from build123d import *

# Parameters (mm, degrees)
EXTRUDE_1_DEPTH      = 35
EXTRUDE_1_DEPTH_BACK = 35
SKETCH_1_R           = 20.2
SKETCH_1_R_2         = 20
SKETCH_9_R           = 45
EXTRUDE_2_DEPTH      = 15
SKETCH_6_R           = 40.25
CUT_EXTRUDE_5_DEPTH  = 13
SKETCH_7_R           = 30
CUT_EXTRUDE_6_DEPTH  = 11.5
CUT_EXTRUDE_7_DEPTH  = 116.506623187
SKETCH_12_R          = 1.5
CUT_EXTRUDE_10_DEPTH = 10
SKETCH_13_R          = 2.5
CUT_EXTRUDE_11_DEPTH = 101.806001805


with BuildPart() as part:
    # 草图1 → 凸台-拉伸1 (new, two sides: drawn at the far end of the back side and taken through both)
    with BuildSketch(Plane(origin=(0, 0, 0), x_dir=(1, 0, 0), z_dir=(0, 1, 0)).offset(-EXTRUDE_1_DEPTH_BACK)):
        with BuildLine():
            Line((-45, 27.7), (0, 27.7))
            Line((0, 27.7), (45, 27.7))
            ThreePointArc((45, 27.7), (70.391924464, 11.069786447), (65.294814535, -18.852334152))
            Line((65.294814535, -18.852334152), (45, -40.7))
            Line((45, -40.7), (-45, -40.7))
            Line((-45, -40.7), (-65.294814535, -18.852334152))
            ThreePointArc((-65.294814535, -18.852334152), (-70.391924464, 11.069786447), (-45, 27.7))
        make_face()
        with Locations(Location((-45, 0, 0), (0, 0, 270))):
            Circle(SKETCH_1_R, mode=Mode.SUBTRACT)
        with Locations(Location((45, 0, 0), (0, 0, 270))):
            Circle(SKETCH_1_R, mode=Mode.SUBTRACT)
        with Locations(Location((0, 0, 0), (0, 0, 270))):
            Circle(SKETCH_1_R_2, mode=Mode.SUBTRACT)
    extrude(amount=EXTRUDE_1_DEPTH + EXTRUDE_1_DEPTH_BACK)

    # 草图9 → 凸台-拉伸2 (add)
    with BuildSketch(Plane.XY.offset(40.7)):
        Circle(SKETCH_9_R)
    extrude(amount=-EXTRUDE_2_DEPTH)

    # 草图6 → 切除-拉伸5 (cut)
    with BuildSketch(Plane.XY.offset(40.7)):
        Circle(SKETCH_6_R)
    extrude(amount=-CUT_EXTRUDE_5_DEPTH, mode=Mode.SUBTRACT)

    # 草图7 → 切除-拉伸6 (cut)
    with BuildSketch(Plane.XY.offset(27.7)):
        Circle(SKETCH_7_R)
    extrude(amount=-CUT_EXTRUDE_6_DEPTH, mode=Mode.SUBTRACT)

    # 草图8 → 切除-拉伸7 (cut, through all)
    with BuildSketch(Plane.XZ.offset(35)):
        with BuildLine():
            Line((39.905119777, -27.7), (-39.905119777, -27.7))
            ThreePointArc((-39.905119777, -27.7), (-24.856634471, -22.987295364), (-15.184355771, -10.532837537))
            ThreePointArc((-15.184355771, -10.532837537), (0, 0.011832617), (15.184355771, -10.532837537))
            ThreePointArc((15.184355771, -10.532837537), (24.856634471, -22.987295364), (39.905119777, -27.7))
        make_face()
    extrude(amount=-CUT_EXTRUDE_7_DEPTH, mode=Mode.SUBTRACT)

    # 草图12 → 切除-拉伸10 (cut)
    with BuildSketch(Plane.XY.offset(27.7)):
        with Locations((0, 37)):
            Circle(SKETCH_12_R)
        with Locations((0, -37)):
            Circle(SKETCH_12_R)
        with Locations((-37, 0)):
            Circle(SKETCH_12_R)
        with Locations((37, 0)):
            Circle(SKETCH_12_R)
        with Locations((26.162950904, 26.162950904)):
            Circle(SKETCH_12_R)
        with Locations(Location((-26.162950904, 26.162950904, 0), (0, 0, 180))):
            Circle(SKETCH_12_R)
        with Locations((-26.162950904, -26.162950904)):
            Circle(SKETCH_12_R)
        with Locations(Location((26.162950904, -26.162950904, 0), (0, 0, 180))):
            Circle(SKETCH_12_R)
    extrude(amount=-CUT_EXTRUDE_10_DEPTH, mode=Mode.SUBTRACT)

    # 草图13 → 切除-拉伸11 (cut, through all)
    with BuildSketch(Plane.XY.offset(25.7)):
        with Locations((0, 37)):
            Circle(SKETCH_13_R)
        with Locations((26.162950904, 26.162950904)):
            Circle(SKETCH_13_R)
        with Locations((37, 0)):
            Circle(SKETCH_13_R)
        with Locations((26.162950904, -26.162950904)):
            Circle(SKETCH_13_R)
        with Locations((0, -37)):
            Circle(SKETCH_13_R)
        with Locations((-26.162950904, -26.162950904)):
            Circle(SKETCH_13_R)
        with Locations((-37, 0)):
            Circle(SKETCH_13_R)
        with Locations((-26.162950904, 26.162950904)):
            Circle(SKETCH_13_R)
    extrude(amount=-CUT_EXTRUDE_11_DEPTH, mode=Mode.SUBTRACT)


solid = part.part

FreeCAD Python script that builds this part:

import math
import FreeCAD as App
import Part
import Sketcher

V = App.Vector
Q = App.Units.Quantity

doc = App.newDocument("Part")
body = doc.addObject("PartDesign::Body", "Body")

sketch1 = body.newObject("Sketcher::SketchObject", "Sketch")
sketch1.AttachmentSupport = (doc.getObject("XZ_Plane"), [""])
sketch1.MapMode = "FlatFace"
sketch1.addGeometry(Part.LineSegment(V(45, -28, 0), V(-45, -28, 0)), False)
sketch1.addGeometry(Part.ArcOfCircle(Part.Circle(V(-45, 0, 0), V(0, 0, 1), 28), math.radians(137), math.radians(270)), False)
sketch1.addGeometry(Part.LineSegment(V(-65, 19, 0), V(-45, 41, 0)), False)
sketch1.addGeometry(Part.LineSegment(V(-45, 41, 0), V(45, 41, 0)), False)
sketch1.addGeometry(Part.LineSegment(V(45, 41, 0), V(65, 19, 0)), False)
sketch1.addGeometry(Part.ArcOfCircle(Part.Circle(V(45, 0, 0), V(0, 0, 1), 28), math.radians(-90), math.radians(43)), False)
sketch1.addGeometry(Part.Circle(V(45, 0, 0), V(0, 0, 1), 20), False)
sketch1.addGeometry(Part.Circle(V(0, 0, 0), V(0, 0, 1), 20), False)
sketch1.addGeometry(Part.Circle(V(-45, 0, 0), V(0, 0, 1), 20), False)
sketch1.addConstraint(Sketcher.Constraint("Tangent", 0, 2, 1, 2))
sketch1.addConstraint(Sketcher.Constraint("Tangent", 1, 1, 2, 1))
sketch1.addConstraint(Sketcher.Constraint("Coincident", 2, 2, 3, 1))
sketch1.addConstraint(Sketcher.Constraint("Coincident", 3, 2, 4, 1))
sketch1.addConstraint(Sketcher.Constraint("Tangent", 4, 2, 5, 2))
sketch1.addConstraint(Sketcher.Constraint("Tangent", 5, 1, 0, 1))
sketch1.addConstraint(Sketcher.Constraint("Horizontal", 0))
sketch1.addConstraint(Sketcher.Constraint("Horizontal", 3))
sketch1.addConstraint(Sketcher.Constraint("Coincident", 7, 3, -1, 1))
sketch1.addConstraint(Sketcher.Constraint("Coincident", 6, 3, 5, 3))
sketch1.addConstraint(Sketcher.Constraint("Coincident", 8, 3, 1, 3))
sketch1.addConstraint(Sketcher.Constraint("Equal", 1, 5))
sketch1.addConstraint(Sketcher.Constraint("Equal", 6, 8))
sketch1.addConstraint(Sketcher.Constraint("Symmetric", 1, 3, 5, 3, -1, 1))
sketch1.addConstraint(Sketcher.Constraint("Horizontal", 1, 1, 4, 2))
sketch1.addConstraint(Sketcher.Constraint("Vertical", 0, 2, 2, 2))
sketch1.addConstraint(Sketcher.Constraint("Diameter", 7, Q("40 mm")))
sketch1.addConstraint(Sketcher.Constraint("Diameter", 6, Q("40.4 mm")))
sketch1.addConstraint(Sketcher.Constraint("Radius", 1, Q("27.7 mm")))
sketch1.addConstraint(Sketcher.Constraint("DistanceX", 0, 2, 0, 1, Q("90 mm")))
sketch1.addConstraint(Sketcher.Constraint("DistanceY", -1, 1, 2, 2, Q("40.7 mm")))
pad1 = body.newObject("PartDesign::Pad", "Pad")
pad1.Profile = sketch1
pad1.Type = "TwoLengths"
pad1.Length = 35
pad1.Length2 = 35
pad1.Reversed = True

sketch2 = body.newObject("Sketcher::SketchObject", "Sketch001")
sketch2.AttachmentSupport = (doc.getObject("XY_Plane"), [""])
sketch2.MapMode = "FlatFace"
sketch2.AttachmentOffset = App.Placement(V(0, 0, 40.7), App.Rotation())
sketch2.addGeometry(Part.Circle(V(0, 0, 0), V(0, 0, 1), 45), False)
sketch2.addConstraint(Sketcher.Constraint("Coincident", 0, 3, -1, 1))
sketch2.addConstraint(Sketcher.Constraint("Diameter", 0, Q("90 mm")))
pad2 = body.newObject("PartDesign::Pad", "Pad001")
pad2.Profile = sketch2
pad2.Length = 15
pad2.Reversed = True

sketch3 = body.newObject("Sketcher::SketchObject", "Sketch002")
sketch3.AttachmentSupport = (doc.getObject("XY_Plane"), [""])
sketch3.MapMode = "FlatFace"
sketch3.AttachmentOffset = App.Placement(V(0, 0, 40.7), App.Rotation())
sketch3.addGeometry(Part.Circle(V(0, 0, 0), V(0, 0, 1), 40), False)
sketch3.addConstraint(Sketcher.Constraint("Coincident", 0, 3, -1, 1))
sketch3.addConstraint(Sketcher.Constraint("Diameter", 0, Q("80.5 mm")))
pocket1 = body.newObject("PartDesign::Pocket", "Pocket")
pocket1.Profile = sketch3
pocket1.Length = 13

sketch4 = body.newObject("Sketcher::SketchObject", "Sketch003")
sketch4.AttachmentSupport = (doc.getObject("XY_Plane"), [""])
sketch4.MapMode = "FlatFace"
sketch4.AttachmentOffset = App.Placement(V(0, 0, 27.7), App.Rotation())
sketch4.addGeometry(Part.Circle(V(0, 0, 0), V(0, 0, 1), 30), False)
sketch4.addConstraint(Sketcher.Constraint("Coincident", 0, 3, -1, 1))
sketch4.addConstraint(Sketcher.Constraint("Diameter", 0, Q("60 mm")))
pocket2 = body.newObject("PartDesign::Pocket", "Pocket001")
pocket2.Profile = sketch4
pocket2.Length = 11.5

sketch5 = body.newObject("Sketcher::SketchObject", "Sketch004")
sketch5.AttachmentSupport = (doc.getObject("XZ_Plane"), [""])
sketch5.MapMode = "FlatFace"
sketch5.AttachmentOffset = App.Placement(V(0, 0, 35), App.Rotation())
sketch5.addGeometry(Part.LineSegment(V(-40, -28, 0), V(40, -28, 0)), False)
sketch5.addGeometry(Part.ArcOfCircle(Part.Circle(V(40, -1, 0), V(0, 0, 1), 26), math.radians(-160), math.radians(-90)), False)
sketch5.addGeometry(Part.ArcOfCircle(Part.Circle(V(0, -16, 0), V(0, 0, 1), 16), math.radians(20), math.radians(160)), False)
sketch5.addGeometry(Part.ArcOfCircle(Part.Circle(V(-40, -1, 0), V(0, 0, 1), 26), math.radians(-90), math.radians(-20)), False)
sketch5.addConstraint(Sketcher.Constraint("Tangent", 0, 2, 1, 2))
sketch5.addConstraint(Sketcher.Constraint("Tangent", 1, 1, 2, 1))
sketch5.addConstraint(Sketcher.Constraint("Tangent", 2, 2, 3, 2))
sketch5.addConstraint(Sketcher.Constraint("Tangent", 3, 1, 0, 1))
sketch5.addConstraint(Sketcher.Constraint("Horizontal", 0))
sketch5.addConstraint(Sketcher.Constraint("Equal", 1, 3))
sketch5.addConstraint(Sketcher.Constraint("PointOnObject", 2, 3, -2))
sketch5.addConstraint(Sketcher.Constraint("DistanceY", 0, 2, -1, 1, Q("27.7 mm")))
sketch5.addConstraint(Sketcher.Constraint("Radius", 1, Q("26.382567 mm")))
sketch5.addConstraint(Sketcher.Constraint("Radius", 2, Q("16.205093 mm")))
sketch5.addConstraint(Sketcher.Constraint("DistanceX", 0, 1, 0, 2, Q("79.81024 mm")))
pocket3 = body.newObject("PartDesign::Pocket", "Pocket002")
pocket3.Profile = sketch5
pocket3.Type = "ThroughAll"

sketch6 = body.newObject("Sketcher::SketchObject", "Sketch005")
sketch6.AttachmentSupport = (doc.getObject("XY_Plane"), [""])
sketch6.MapMode = "FlatFace"
sketch6.AttachmentOffset = App.Placement(V(0, 0, 27.7), App.Rotation())
sketch6.addGeometry(Part.Circle(V(0, 37, 0), V(0, 0, 1), 1.5), False)
sketch6.addGeometry(Part.Circle(V(0, -37, 0), V(0, 0, 1), 1.5), False)
sketch6.addGeometry(Part.Circle(V(-37, 0, 0), V(0, 0, 1), 1.5), False)
sketch6.addGeometry(Part.Circle(V(37, 0, 0), V(0, 0, 1), 1.5), False)
sketch6.addGeometry(Part.Circle(V(26.2, 26.2, 0), V(0, 0, 1), 1.5), False)
sketch6.addGeometry(Part.Circle(V(-26.2, 26.2, 0), V(0, 0, 1), 1.5), False)
sketch6.addGeometry(Part.Circle(V(-26.2, -26.2, 0), V(0, 0, 1), 1.5), False)
sketch6.addGeometry(Part.Circle(V(26.2, -26.2, 0), V(0, 0, 1), 1.5), False)
sketch6.addConstraint(Sketcher.Constraint("Equal", 0, 1))
sketch6.addConstraint(Sketcher.Constraint("Equal", 1, 2))
sketch6.addConstraint(Sketcher.Constraint("Equal", 2, 3))
sketch6.addConstraint(Sketcher.Constraint("Equal", 3, 4))
sketch6.addConstraint(Sketcher.Constraint("Equal", 4, 5))
sketch6.addConstraint(Sketcher.Constraint("Equal", 5, 6))
sketch6.addConstraint(Sketcher.Constraint("Equal", 6, 7))
sketch6.addConstraint(Sketcher.Constraint("Symmetric", 0, 3, 1, 3, -1, 1))
sketch6.addConstraint(Sketcher.Constraint("Symmetric", 2, 3, 3, 3, -1, 1))
sketch6.addConstraint(Sketcher.Constraint("Symmetric", 4, 3, 6, 3, -1, 1))
sketch6.addConstraint(Sketcher.Constraint("Symmetric", 5, 3, 7, 3, -1, 1))
sketch6.addConstraint(Sketcher.Constraint("Symmetric", 4, 3, 5, 3, -2))
sketch6.addConstraint(Sketcher.Constraint("PointOnObject", 0, 3, -2))
sketch6.addConstraint(Sketcher.Constraint("PointOnObject", 2, 3, -1))
sketch6.addConstraint(Sketcher.Constraint("Diameter", 0, Q("3 mm")))
sketch6.addConstraint(Sketcher.Constraint("DistanceY", -1, 1, 0, 3, Q("37 mm")))
sketch6.addConstraint(Sketcher.Constraint("DistanceX", 2, 3, -1, 1, Q("37 mm")))
sketch6.addConstraint(Sketcher.Constraint("DistanceX", 5, 3, 4, 3, Q("52.325902 mm")))
sketch6.addConstraint(Sketcher.Constraint("DistanceY", 6, 3, 5, 3, Q("52.325902 mm")))
pocket4 = body.newObject("PartDesign::Pocket", "Pocket003")
pocket4.Profile = sketch6
pocket4.Length = 10

sketch7 = body.newObject("Sketcher::SketchObject", "Sketch006")
sketch7.AttachmentSupport = (doc.getObject("XY_Plane"), [""])
sketch7.MapMode = "FlatFace"
sketch7.AttachmentOffset = App.Placement(V(0, 0, 25.7), App.Rotation())
sketch7.addGeometry(Part.Circle(V(0, 37, 0), V(0, 0, 1), 2.5), False)
sketch7.addGeometry(Part.Circle(V(26.2, 26.2, 0), V(0, 0, 1), 2.5), False)
sketch7.addGeometry(Part.Circle(V(37, 0, 0), V(0, 0, 1), 2.5), False)
sketch7.addGeometry(Part.Circle(V(26.2, -26.2, 0), V(0, 0, 1), 2.5), False)
sketch7.addGeometry(Part.Circle(V(0, -37, 0), V(0, 0, 1), 2.5), False)
sketch7.addGeometry(Part.Circle(V(-26.2, -26.2, 0), V(0, 0, 1), 2.5), False)
sketch7.addGeometry(Part.Circle(V(-37, 0, 0), V(0, 0, 1), 2.5), False)
sketch7.addGeometry(Part.Circle(V(-26.2, 26.2, 0), V(0, 0, 1), 2.5), False)
sketch7.addConstraint(Sketcher.Constraint("Equal", 0, 1))
sketch7.addConstraint(Sketcher.Constraint("Equal", 1, 2))
sketch7.addConstraint(Sketcher.Constraint("Equal", 2, 3))
sketch7.addConstraint(Sketcher.Constraint("Equal", 3, 4))
sketch7.addConstraint(Sketcher.Constraint("Equal", 4, 5))
sketch7.addConstraint(Sketcher.Constraint("Equal", 5, 6))
sketch7.addConstraint(Sketcher.Constraint("Equal", 6, 7))
sketch7.addConstraint(Sketcher.Constraint("Symmetric", 0, 3, 4, 3, -1, 1))
sketch7.addConstraint(Sketcher.Constraint("Symmetric", 1, 3, 5, 3, -1, 1))
sketch7.addConstraint(Sketcher.Constraint("Symmetric", 2, 3, 6, 3, -1, 1))
sketch7.addConstraint(Sketcher.Constraint("Symmetric", 3, 3, 7, 3, -1, 1))
sketch7.addConstraint(Sketcher.Constraint("Symmetric", 3, 3, 5, 3, -2))
sketch7.addConstraint(Sketcher.Constraint("PointOnObject", 0, 3, -2))
sketch7.addConstraint(Sketcher.Constraint("PointOnObject", 2, 3, -1))
sketch7.addConstraint(Sketcher.Constraint("Diameter", 0, Q("5 mm")))
sketch7.addConstraint(Sketcher.Constraint("DistanceY", -1, 1, 0, 3, Q("37 mm")))
sketch7.addConstraint(Sketcher.Constraint("DistanceX", -1, 1, 2, 3, Q("37 mm")))
sketch7.addConstraint(Sketcher.Constraint("DistanceY", 3, 3, 1, 3, Q("52.325902 mm")))
sketch7.addConstraint(Sketcher.Constraint("DistanceX", 5, 3, 3, 3, Q("52.325902 mm")))
pocket5 = body.newObject("PartDesign::Pocket", "Pocket004")
pocket5.Profile = sketch7
pocket5.Type = "ThroughAll"

doc.recompute()
